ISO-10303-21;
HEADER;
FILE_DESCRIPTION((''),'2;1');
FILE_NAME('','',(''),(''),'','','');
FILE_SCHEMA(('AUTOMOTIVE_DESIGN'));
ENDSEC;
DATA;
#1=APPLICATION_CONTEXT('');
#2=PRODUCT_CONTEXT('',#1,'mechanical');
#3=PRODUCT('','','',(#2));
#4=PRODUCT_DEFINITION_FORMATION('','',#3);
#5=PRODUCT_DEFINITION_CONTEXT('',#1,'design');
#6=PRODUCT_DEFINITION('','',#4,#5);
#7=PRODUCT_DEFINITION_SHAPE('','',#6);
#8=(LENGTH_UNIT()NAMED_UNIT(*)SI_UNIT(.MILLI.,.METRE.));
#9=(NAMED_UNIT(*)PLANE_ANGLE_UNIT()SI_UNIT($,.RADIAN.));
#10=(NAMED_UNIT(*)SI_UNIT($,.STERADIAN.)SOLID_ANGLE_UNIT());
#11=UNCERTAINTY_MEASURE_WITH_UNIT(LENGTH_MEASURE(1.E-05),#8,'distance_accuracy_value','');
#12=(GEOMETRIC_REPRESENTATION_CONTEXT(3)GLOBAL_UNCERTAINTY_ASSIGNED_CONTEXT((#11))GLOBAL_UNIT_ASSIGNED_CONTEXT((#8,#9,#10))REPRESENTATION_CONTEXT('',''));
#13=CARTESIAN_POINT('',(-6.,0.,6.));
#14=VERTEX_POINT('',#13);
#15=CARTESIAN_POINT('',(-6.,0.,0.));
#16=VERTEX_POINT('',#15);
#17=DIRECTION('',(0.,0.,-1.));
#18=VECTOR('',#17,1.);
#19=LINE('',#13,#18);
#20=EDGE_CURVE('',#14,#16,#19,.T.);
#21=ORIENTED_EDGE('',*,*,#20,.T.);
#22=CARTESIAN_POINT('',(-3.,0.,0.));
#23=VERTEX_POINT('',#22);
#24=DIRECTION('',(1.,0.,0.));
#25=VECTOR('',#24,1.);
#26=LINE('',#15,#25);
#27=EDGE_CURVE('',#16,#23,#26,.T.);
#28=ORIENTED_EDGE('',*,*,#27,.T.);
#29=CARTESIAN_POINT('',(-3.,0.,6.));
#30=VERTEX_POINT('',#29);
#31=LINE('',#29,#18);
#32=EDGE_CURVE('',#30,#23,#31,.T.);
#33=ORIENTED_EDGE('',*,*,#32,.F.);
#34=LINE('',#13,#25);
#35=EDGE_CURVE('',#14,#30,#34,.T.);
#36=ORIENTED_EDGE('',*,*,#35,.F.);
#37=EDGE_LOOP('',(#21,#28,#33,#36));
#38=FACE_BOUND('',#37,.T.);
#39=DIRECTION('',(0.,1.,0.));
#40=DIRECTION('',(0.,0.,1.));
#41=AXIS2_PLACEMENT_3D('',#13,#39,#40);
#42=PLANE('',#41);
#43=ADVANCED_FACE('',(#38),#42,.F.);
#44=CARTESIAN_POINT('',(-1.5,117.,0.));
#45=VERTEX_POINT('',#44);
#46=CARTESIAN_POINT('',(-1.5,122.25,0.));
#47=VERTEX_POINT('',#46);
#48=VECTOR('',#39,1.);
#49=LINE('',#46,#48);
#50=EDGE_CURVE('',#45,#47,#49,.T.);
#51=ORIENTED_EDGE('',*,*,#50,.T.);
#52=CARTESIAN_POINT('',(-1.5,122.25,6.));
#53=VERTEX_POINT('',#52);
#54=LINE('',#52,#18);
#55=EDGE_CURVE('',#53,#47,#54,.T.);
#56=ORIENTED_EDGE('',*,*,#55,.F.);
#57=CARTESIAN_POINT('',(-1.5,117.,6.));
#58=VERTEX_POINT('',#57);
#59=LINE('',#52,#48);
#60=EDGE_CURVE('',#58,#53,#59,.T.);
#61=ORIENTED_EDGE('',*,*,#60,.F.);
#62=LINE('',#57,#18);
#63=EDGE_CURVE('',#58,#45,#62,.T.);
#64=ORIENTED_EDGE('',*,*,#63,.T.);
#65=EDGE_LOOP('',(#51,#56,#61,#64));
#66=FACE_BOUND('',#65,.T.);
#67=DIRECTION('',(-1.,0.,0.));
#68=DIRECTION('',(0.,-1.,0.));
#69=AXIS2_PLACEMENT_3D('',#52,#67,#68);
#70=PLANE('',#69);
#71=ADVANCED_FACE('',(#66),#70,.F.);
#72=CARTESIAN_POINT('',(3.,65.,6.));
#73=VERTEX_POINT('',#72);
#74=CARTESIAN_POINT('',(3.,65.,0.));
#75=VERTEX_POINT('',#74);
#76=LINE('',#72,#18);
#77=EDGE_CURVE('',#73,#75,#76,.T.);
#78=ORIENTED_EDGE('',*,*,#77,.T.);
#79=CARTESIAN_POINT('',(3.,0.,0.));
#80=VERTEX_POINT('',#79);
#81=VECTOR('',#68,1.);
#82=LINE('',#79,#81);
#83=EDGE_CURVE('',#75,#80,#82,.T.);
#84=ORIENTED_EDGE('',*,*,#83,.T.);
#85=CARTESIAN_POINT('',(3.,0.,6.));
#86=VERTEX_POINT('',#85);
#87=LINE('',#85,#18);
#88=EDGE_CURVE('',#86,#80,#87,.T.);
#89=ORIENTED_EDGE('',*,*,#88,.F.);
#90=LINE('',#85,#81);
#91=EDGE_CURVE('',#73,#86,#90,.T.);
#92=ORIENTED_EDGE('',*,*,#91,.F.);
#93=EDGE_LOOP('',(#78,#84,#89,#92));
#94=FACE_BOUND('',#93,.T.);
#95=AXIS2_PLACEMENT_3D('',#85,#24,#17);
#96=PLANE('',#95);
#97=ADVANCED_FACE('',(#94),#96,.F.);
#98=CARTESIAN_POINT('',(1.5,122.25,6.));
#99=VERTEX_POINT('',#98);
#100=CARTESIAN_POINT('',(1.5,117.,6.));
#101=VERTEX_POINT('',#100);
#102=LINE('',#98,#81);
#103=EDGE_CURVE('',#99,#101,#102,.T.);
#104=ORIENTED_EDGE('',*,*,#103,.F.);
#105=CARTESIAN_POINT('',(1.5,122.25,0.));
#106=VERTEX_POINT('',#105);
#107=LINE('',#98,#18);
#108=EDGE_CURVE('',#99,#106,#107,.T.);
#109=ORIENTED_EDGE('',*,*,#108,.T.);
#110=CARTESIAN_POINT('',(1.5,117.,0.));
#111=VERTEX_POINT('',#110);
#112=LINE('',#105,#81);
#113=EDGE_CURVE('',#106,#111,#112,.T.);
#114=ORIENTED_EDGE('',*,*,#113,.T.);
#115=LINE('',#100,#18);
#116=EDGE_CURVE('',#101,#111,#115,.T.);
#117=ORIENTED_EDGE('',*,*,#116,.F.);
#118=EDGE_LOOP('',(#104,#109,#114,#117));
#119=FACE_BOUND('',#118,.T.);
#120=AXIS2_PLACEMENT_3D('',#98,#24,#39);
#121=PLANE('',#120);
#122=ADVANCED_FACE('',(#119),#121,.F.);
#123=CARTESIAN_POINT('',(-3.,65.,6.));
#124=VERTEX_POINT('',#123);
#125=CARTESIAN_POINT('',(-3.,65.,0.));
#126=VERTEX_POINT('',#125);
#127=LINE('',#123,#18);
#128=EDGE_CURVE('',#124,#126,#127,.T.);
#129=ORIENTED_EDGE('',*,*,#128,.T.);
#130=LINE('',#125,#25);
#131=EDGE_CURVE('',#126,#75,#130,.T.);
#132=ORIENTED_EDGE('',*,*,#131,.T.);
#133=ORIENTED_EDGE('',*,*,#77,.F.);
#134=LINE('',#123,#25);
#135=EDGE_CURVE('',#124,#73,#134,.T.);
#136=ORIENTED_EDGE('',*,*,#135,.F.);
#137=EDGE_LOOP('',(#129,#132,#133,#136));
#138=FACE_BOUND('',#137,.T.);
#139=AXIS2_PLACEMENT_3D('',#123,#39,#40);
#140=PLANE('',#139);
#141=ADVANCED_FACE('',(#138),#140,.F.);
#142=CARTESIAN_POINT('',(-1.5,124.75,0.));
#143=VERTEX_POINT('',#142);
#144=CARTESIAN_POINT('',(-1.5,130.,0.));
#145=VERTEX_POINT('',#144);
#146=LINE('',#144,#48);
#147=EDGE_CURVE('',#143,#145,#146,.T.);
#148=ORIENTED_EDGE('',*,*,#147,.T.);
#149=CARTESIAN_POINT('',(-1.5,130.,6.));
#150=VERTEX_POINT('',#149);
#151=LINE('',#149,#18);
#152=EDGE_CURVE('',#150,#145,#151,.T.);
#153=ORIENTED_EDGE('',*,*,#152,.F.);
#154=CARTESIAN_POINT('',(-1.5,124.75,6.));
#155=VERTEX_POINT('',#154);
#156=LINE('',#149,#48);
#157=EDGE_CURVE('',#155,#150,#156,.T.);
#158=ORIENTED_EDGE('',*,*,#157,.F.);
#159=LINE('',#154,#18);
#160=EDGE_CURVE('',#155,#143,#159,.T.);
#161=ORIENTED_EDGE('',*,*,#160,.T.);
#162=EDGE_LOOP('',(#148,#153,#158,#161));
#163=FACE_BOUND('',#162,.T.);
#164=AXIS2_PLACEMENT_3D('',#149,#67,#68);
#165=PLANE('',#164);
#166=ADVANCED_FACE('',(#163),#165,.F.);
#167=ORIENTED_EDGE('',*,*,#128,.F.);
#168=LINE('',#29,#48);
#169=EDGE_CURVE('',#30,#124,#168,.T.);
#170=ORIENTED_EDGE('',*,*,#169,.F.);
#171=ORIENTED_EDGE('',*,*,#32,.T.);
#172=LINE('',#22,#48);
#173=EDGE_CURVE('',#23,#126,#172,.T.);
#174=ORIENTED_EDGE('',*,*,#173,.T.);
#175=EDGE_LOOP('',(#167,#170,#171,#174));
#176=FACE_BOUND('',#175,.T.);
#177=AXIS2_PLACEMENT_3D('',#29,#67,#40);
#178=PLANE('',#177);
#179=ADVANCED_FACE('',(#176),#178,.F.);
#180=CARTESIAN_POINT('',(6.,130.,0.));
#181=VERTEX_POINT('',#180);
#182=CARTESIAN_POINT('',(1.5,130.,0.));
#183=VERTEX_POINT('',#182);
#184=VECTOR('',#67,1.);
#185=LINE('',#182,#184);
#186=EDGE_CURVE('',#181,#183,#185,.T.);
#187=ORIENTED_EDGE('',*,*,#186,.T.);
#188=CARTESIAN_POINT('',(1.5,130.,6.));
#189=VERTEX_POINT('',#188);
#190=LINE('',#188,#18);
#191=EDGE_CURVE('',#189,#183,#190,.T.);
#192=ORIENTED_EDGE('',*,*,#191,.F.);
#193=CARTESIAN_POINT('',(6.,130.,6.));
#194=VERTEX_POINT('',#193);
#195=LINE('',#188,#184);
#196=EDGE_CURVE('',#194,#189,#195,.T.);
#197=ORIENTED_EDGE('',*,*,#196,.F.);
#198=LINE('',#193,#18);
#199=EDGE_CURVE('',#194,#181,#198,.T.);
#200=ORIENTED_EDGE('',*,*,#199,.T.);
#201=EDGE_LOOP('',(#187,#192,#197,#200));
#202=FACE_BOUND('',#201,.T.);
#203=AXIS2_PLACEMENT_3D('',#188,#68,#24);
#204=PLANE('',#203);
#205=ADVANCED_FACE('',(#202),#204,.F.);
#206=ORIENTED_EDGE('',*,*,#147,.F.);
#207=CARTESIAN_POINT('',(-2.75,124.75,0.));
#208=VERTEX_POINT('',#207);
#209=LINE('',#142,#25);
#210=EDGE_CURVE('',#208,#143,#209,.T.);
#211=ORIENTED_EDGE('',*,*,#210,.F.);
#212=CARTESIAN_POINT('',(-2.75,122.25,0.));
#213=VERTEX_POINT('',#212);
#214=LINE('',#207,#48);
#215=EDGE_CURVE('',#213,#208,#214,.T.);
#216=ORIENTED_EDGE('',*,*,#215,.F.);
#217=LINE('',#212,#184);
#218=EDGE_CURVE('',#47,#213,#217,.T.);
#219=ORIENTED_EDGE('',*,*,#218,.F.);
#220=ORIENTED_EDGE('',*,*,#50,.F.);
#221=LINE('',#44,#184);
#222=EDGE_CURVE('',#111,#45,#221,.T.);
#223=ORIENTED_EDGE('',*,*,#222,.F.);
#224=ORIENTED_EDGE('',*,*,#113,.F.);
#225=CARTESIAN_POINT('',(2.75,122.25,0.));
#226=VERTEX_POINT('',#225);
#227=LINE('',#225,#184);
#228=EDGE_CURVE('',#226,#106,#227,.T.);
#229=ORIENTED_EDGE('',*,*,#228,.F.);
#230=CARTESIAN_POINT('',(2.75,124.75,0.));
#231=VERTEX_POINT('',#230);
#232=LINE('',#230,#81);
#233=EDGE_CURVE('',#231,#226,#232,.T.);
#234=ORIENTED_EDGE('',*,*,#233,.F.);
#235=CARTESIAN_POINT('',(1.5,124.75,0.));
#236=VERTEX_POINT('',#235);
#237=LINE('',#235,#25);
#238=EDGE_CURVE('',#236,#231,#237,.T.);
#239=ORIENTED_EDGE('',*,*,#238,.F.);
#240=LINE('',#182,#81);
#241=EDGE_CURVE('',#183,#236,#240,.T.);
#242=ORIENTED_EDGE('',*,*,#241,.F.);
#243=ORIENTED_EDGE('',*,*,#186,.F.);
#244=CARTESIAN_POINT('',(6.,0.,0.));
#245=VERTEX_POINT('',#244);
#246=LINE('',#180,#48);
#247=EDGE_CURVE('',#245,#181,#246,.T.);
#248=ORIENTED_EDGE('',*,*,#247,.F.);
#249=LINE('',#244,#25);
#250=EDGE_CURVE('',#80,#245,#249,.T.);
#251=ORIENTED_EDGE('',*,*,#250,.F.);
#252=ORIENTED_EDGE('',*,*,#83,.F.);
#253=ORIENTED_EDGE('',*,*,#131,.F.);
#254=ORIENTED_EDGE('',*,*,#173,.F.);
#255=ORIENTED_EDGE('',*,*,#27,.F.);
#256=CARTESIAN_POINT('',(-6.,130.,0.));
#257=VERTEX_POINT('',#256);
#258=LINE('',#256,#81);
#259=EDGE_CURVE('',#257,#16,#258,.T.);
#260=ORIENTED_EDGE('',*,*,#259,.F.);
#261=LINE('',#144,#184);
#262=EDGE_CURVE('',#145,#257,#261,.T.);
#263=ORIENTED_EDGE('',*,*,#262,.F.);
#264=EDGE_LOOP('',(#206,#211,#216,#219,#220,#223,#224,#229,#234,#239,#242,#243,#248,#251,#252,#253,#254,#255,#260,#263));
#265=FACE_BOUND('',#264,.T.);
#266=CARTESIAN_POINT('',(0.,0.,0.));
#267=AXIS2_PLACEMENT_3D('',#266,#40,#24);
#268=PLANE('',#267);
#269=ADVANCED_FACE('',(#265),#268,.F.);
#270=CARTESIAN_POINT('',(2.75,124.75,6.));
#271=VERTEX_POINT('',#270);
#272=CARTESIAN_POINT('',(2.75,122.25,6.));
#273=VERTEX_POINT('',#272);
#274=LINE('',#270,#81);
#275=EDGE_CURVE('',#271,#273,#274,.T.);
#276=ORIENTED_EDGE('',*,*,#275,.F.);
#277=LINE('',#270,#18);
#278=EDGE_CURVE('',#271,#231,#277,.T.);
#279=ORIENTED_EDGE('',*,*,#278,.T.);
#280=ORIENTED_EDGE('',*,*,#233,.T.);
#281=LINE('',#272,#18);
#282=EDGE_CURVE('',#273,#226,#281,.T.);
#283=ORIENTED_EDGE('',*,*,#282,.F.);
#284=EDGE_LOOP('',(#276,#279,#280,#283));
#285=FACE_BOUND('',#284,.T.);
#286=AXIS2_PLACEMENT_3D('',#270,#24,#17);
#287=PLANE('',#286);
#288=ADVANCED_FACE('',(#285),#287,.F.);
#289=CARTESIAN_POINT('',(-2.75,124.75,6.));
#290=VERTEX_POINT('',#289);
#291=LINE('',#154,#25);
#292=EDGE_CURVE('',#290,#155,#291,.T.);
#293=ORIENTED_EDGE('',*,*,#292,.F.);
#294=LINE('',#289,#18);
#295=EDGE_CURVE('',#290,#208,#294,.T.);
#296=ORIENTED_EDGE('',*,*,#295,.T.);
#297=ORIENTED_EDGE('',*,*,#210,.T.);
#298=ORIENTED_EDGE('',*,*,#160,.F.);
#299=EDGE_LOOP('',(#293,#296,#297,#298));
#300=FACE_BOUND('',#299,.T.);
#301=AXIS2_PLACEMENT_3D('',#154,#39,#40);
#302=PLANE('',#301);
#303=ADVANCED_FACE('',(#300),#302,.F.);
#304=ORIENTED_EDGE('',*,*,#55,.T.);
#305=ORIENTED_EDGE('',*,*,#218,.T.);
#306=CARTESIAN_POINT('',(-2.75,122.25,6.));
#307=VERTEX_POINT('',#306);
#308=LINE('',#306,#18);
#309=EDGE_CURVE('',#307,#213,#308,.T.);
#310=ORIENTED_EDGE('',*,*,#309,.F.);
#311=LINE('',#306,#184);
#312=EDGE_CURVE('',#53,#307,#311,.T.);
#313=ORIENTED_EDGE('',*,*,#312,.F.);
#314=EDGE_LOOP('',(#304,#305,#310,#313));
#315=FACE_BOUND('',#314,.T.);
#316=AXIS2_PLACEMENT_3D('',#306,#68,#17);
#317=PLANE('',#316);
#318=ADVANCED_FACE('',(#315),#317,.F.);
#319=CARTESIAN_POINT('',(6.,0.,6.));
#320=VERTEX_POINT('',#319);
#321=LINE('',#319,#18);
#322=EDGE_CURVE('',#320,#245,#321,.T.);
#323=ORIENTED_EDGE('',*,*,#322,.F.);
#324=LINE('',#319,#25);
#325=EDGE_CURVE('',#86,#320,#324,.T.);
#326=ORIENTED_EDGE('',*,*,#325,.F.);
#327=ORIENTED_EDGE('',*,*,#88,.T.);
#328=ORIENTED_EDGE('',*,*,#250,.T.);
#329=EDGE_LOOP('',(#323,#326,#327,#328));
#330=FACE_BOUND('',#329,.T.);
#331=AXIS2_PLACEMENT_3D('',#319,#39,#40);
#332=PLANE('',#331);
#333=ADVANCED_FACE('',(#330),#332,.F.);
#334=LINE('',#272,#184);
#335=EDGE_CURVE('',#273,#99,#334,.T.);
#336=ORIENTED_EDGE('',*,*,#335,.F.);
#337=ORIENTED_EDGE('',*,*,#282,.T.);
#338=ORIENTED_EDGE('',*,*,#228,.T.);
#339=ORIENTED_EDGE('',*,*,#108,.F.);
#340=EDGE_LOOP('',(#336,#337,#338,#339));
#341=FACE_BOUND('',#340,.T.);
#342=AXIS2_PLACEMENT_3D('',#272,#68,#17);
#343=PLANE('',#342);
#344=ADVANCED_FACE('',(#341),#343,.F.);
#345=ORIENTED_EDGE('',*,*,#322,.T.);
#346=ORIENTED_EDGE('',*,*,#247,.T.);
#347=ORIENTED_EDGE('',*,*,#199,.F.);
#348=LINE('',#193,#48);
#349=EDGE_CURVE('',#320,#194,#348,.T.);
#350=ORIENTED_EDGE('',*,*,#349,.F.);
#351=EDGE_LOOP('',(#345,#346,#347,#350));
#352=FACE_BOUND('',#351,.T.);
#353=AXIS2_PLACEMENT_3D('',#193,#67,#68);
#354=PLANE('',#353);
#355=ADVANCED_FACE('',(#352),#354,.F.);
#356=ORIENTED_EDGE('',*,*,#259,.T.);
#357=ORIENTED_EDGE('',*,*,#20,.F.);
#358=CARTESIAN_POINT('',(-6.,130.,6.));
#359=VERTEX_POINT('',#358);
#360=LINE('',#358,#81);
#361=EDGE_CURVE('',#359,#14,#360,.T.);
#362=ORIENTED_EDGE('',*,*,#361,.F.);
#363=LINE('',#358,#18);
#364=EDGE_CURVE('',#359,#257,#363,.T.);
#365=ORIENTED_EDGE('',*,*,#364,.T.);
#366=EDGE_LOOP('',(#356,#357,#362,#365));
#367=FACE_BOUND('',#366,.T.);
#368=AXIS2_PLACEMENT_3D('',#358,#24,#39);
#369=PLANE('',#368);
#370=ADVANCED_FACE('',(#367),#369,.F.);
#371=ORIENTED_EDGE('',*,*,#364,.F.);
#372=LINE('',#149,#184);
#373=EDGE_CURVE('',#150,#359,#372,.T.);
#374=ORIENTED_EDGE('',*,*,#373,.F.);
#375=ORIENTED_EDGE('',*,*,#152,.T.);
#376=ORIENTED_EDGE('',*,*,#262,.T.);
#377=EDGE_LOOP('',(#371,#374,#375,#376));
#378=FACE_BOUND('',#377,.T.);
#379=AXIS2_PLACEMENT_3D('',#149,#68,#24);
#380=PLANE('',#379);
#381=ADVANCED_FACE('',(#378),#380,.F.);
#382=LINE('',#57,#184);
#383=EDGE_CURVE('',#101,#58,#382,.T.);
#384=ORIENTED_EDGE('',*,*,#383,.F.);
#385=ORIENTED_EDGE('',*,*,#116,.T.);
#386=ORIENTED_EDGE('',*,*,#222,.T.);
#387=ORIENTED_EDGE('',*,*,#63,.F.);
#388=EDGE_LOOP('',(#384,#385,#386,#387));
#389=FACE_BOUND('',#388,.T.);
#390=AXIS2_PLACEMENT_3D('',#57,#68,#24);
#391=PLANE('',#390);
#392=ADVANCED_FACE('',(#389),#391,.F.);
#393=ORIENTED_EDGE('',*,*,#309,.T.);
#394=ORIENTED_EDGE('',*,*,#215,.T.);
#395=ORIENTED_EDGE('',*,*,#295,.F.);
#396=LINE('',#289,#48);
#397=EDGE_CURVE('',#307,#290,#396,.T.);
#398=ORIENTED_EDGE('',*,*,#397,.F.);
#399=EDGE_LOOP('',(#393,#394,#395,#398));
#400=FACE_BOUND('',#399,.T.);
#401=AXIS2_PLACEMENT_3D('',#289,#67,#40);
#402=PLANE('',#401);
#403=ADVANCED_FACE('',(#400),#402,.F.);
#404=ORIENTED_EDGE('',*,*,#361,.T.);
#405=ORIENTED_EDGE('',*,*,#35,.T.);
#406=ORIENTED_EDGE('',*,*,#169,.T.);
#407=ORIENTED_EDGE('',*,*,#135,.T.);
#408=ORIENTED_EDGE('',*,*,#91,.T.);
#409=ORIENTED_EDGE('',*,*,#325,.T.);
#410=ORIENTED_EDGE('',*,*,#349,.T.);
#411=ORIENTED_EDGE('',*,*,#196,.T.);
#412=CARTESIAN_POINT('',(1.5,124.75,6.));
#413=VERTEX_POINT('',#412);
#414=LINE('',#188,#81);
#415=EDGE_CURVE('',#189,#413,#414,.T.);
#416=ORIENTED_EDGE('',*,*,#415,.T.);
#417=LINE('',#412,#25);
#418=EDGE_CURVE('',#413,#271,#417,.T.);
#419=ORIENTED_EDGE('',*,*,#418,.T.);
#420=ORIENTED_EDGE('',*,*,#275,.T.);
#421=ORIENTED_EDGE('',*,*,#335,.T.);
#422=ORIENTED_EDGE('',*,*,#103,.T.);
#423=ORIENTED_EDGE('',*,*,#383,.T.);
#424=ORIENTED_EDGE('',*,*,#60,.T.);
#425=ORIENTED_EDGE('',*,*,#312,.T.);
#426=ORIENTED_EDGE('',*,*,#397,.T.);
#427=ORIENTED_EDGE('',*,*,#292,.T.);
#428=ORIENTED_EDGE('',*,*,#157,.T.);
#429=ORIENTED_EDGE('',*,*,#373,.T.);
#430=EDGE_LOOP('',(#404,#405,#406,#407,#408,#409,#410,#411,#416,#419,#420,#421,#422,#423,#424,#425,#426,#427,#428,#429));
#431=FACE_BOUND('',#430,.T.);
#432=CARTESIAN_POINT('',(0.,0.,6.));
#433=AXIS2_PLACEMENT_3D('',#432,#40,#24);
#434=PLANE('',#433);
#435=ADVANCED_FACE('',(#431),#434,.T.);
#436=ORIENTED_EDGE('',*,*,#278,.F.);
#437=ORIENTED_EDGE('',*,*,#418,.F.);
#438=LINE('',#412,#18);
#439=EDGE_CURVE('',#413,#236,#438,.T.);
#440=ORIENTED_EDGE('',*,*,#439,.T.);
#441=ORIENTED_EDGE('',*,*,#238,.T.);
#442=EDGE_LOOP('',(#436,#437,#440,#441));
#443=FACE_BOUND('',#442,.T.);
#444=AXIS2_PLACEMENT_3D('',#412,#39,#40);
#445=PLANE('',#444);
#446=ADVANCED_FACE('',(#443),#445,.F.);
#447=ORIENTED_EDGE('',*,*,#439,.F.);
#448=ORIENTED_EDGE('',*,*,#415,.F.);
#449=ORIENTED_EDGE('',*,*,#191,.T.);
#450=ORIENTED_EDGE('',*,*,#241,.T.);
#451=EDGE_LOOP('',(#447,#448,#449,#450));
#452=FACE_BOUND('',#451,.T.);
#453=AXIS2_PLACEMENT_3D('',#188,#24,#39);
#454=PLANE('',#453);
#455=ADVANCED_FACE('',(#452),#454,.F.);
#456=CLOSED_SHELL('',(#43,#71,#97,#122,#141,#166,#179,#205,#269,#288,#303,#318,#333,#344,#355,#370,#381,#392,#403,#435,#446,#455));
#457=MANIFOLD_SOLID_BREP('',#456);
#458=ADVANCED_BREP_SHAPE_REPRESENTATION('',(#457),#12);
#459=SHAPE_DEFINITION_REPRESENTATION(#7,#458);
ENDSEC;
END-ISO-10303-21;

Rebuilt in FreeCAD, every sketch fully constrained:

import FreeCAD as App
import Part
import Sketcher

V = App.Vector
Q = App.Units.Quantity


def add_polygon(sketch, points):
    """Adds a closed chain of lines whose ends are joined by coincident constraints."""
    first, n = sketch.GeometryCount, len(points)
    for a, b in zip(points, points[1:] + points[:1]):
        sketch.addGeometry(Part.LineSegment(App.Vector(*a, 0), App.Vector(*b, 0)), False)
    for i in range(n):
        sketch.addConstraint(Sketcher.Constraint("Coincident", first + i, 2, first + (i + 1) % n, 1))

doc = App.newDocument("Part")
body = doc.addObject("PartDesign::Body", "Body")

# Sketch on XY plane
sketch1 = doc.addObject("Sketcher::SketchObject", "Sketch")
body.addObject(sketch1)
sketch1.AttachmentSupport = (doc.XY_Plane, [""])
sketch1.MapMode = "FlatFace"
add_polygon(sketch1, [(-1.5, 124.8), (-1.5, 130), (-6, 130), (-6, 0), (-3, 0), (-3, 65), (3, 65), (3, 0), (6, 0), (6, 130), (1.5, 130), (1.5, 124.8), (2.8, 124.8), (2.8, 122.2), (1.5, 122.2), (1.5, 117), (-1.5, 117), (-1.5, 122.2), (-2.8, 122.2), (-2.8, 124.8)])  # lines 0-19
sketch1.addConstraint(Sketcher.Constraint("Vertical", 0))
sketch1.addConstraint(Sketcher.Constraint("Horizontal", 1))
sketch1.addConstraint(Sketcher.Constraint("Vertical", 2))
sketch1.addConstraint(Sketcher.Constraint("Horizontal", 3))
sketch1.addConstraint(Sketcher.Constraint("Vertical", 4))
sketch1.addConstraint(Sketcher.Constraint("Horizontal", 5))
sketch1.addConstraint(Sketcher.Constraint("Vertical", 6))
sketch1.addConstraint(Sketcher.Constraint("Horizontal", 7))
sketch1.addConstraint(Sketcher.Constraint("Vertical", 8))
sketch1.addConstraint(Sketcher.Constraint("Horizontal", 9))
sketch1.addConstraint(Sketcher.Constraint("Vertical", 10))
sketch1.addConstraint(Sketcher.Constraint("Horizontal", 11))
sketch1.addConstraint(Sketcher.Constraint("Vertical", 12))
sketch1.addConstraint(Sketcher.Constraint("Horizontal", 13))
sketch1.addConstraint(Sketcher.Constraint("Vertical", 14))
sketch1.addConstraint(Sketcher.Constraint("Horizontal", 15))
sketch1.addConstraint(Sketcher.Constraint("Vertical", 16))
sketch1.addConstraint(Sketcher.Constraint("Horizontal", 17))
sketch1.addConstraint(Sketcher.Constraint("Vertical", 18))
sketch1.addConstraint(Sketcher.Constraint("Horizontal", 19))
sketch1.addConstraint(Sketcher.Constraint("Symmetric", 3, 2, 6, 2, -1, 1))
sketch1.addConstraint(Sketcher.Constraint("Symmetric", 2, 2, 7, 2, -2))
sketch1.addConstraint(Sketcher.Constraint("Symmetric", 0, 2, 9, 2, -2))
sketch1.addConstraint(Sketcher.Constraint("Symmetric", 13, 2, 16, 2, -2))
sketch1.addConstraint(Sketcher.Constraint("Symmetric", 11, 2, 18, 2, -2))
sketch1.addConstraint(Sketcher.Constraint("Vertical", 10, 2, 13, 2))
sketch1.addConstraint(Sketcher.Constraint("Equal", 7, 15))
sketch1.addConstraint(Sketcher.Constraint("Equal", 10, 14))
sketch1.addConstraint(Sketcher.Constraint("DistanceX", 3, 1, 3, 2, Q("3 mm")))
sketch1.addConstraint(Sketcher.Constraint("DistanceX", 5, 1, 5, 2, Q("6 mm")))
sketch1.addConstraint(Sketcher.Constraint("DistanceY", 2, 2, 2, 1, Q("130 mm")))
sketch1.addConstraint(Sketcher.Constraint("DistanceY", 4, 1, 4, 2, Q("65 mm")))
sketch1.addConstraint(Sketcher.Constraint("DistanceY", 12, 2, 12, 1, Q("2.5 mm")))
sketch1.addConstraint(Sketcher.Constraint("DistanceY", -1, 1, 14, 2, Q("117 mm")))
sketch1.addConstraint(Sketcher.Constraint("DistanceX", 11, 1, 11, 2, Q("1.25 mm")))
pad1 = doc.addObject("PartDesign::Pad", "Pad")
body.addObject(pad1)
pad1.Profile = sketch1
pad1.Length = 6

doc.recompute()
